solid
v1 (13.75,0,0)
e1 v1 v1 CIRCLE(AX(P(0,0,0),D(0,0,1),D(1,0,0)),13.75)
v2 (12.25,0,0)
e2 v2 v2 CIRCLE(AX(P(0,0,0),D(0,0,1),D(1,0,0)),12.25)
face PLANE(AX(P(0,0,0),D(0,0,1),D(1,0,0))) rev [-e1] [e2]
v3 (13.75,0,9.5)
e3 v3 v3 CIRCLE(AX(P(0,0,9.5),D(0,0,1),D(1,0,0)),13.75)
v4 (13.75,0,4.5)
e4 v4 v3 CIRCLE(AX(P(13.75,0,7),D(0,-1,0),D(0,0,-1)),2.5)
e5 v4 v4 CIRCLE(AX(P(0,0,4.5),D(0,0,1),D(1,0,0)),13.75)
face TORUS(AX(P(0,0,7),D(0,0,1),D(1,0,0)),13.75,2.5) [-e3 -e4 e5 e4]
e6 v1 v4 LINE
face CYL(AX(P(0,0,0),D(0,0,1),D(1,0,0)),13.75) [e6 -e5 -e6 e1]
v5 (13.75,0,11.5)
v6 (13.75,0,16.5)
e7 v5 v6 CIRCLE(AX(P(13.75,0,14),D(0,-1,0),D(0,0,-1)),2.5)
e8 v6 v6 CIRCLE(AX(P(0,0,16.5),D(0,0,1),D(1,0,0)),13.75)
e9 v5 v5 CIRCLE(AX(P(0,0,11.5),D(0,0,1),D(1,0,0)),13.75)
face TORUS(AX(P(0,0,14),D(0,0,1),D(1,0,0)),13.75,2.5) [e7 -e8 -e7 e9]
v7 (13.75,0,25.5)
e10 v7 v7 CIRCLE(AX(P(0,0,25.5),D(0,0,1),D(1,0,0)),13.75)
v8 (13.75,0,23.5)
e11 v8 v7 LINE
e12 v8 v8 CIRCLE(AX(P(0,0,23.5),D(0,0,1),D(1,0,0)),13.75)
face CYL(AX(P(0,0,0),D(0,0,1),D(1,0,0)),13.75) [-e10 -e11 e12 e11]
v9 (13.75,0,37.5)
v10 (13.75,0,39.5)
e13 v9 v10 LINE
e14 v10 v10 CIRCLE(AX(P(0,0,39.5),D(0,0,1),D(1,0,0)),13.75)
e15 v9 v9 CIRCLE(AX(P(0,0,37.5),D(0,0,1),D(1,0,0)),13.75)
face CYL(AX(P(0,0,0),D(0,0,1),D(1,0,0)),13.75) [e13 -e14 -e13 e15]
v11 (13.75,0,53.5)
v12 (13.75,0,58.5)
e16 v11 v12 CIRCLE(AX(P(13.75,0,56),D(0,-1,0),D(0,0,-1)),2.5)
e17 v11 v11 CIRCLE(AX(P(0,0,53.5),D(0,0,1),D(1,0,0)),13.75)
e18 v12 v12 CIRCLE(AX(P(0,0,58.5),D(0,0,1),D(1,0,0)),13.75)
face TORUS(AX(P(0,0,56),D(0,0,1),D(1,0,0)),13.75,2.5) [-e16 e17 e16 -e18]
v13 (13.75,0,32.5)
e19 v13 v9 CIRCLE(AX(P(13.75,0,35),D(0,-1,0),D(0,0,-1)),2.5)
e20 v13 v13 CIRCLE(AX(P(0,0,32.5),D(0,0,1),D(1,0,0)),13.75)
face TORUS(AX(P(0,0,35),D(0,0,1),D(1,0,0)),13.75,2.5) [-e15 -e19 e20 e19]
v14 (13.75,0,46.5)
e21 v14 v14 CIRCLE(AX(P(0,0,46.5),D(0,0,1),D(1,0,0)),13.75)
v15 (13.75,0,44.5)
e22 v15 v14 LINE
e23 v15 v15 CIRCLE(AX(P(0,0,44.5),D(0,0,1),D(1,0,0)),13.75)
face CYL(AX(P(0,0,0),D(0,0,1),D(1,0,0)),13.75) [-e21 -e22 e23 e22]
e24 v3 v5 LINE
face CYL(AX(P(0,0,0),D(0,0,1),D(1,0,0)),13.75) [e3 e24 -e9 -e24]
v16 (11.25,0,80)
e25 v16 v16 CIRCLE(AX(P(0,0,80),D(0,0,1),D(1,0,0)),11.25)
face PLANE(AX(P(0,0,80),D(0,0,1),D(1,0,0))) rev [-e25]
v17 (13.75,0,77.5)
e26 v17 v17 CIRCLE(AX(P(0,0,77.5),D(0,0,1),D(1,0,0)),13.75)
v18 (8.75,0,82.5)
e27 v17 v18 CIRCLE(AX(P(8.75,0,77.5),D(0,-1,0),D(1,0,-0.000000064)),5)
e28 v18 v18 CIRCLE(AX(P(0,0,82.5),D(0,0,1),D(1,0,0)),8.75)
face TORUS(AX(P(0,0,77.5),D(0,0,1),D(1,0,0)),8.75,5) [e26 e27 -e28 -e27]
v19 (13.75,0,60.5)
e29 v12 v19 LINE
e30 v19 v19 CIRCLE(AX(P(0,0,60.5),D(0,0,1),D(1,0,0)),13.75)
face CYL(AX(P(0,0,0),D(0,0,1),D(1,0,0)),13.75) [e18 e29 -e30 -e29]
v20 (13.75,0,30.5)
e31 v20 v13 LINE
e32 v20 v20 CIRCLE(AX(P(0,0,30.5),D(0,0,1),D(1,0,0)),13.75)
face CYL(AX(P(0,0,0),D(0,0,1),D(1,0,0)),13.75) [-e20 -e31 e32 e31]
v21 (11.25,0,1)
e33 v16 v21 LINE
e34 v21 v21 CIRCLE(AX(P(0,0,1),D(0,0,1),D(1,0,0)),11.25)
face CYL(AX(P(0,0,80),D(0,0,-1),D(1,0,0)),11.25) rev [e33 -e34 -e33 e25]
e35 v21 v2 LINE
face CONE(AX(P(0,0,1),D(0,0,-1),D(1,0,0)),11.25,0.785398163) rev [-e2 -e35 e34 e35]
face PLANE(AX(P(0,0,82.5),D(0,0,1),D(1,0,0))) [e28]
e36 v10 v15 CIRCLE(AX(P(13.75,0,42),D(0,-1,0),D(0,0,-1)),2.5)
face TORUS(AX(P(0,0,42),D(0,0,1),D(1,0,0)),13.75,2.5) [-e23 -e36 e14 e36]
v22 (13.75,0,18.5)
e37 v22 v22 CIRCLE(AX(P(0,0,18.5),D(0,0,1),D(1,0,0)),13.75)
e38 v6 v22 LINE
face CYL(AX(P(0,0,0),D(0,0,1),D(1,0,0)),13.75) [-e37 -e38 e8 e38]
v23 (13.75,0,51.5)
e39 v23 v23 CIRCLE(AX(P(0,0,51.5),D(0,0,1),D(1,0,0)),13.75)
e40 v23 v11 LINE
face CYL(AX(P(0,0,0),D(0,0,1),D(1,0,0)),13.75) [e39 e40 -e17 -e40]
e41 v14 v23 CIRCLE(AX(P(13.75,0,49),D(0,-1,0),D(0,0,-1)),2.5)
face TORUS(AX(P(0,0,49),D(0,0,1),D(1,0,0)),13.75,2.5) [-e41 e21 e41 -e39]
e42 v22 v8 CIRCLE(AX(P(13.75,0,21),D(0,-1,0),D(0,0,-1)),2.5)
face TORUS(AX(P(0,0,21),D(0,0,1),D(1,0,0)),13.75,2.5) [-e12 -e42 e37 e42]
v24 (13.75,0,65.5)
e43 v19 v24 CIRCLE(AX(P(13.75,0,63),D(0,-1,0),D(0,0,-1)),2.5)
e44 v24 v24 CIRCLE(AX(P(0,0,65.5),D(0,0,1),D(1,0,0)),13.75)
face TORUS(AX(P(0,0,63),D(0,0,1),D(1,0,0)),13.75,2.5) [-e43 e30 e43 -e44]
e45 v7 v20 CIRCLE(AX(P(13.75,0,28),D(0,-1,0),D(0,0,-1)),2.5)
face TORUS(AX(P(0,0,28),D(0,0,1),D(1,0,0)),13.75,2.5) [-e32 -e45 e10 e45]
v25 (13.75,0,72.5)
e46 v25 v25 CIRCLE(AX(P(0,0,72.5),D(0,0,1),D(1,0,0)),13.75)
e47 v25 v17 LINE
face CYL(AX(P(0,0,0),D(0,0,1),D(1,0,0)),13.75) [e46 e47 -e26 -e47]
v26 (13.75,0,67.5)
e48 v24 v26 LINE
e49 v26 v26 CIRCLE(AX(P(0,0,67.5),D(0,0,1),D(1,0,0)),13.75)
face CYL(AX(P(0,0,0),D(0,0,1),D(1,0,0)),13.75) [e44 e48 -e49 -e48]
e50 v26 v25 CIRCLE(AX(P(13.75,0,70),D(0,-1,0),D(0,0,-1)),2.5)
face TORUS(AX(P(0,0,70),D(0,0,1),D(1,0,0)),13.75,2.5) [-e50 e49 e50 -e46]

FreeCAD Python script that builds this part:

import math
import FreeCAD as App
import Part
import Sketcher

V = App.Vector


def edges_at(feature, points):
    """Names of the edges that pass closest to the given points."""
    edges = feature.Shape.Edges
    near = lambda p: min(range(len(edges)), key=lambda i: edges[i].distToShape(Part.Vertex(*p))[0])
    return sorted({f"Edge{near(p) + 1}" for p in points})

doc = App.newDocument("Part")
body = doc.addObject("PartDesign::Body", "Body")

# Sketch on XZ plane
sketch1 = body.newObject("Sketcher::SketchObject", "Sketch")
sketch1.AttachmentSupport = (doc.getObject("XZ_Plane"), [""])
sketch1.MapMode = "FlatFace"
sketch1.addGeometry([
    Part.LineSegment(V(0, 82.5, 0), V(0, 80, 0)),  # 0
    Part.LineSegment(V(0, 80, 0), V(11.2, 80, 0)),  # 1
    Part.LineSegment(V(11.2, 80, 0), V(11.2, 0, 0)),  # 2
    Part.LineSegment(V(11.2, 0, 0), V(13.8, 0, 0)),  # 3
    Part.LineSegment(V(13.8, 0, 0), V(13.8, 4.5, 0)),  # 4
    Part.ArcOfCircle(Part.Circle(V(13.8, 7, 0), V(0, 0, 1), 2.5), math.radians(-90), math.radians(90)),  # 5
    Part.LineSegment(V(13.8, 9.5, 0), V(13.8, 11.5, 0)),  # 6
    Part.ArcOfCircle(Part.Circle(V(13.8, 14, 0), V(0, 0, 1), 2.5), math.radians(-90), math.radians(90)),  # 7
    Part.LineSegment(V(13.8, 16.5, 0), V(13.8, 18.5, 0)),  # 8
    Part.ArcOfCircle(Part.Circle(V(13.8, 21, 0), V(0, 0, 1), 2.5), math.radians(-90), math.radians(90)),  # 9
    Part.LineSegment(V(13.8, 23.5, 0), V(13.8, 25.5, 0)),  # 10
    Part.ArcOfCircle(Part.Circle(V(13.8, 28, 0), V(0, 0, 1), 2.5), math.radians(-90), math.radians(90)),  # 11
    Part.LineSegment(V(13.8, 30.5, 0), V(13.8, 32.5, 0)),  # 12
    Part.ArcOfCircle(Part.Circle(V(13.8, 35, 0), V(0, 0, 1), 2.5), math.radians(-90), math.radians(90)),  # 13
    Part.LineSegment(V(13.8, 37.5, 0), V(13.8, 39.5, 0)),  # 14
    Part.ArcOfCircle(Part.Circle(V(13.8, 42, 0), V(0, 0, 1), 2.5), math.radians(-90), math.radians(90)),  # 15
    Part.LineSegment(V(13.8, 44.5, 0), V(13.8, 46.5, 0)),  # 16
    Part.ArcOfCircle(Part.Circle(V(13.8, 49, 0), V(0, 0, 1), 2.5), math.radians(-90), math.radians(90)),  # 17
    Part.LineSegment(V(13.8, 51.5, 0), V(13.8, 53.5, 0)),  # 18
    Part.ArcOfCircle(Part.Circle(V(13.8, 56, 0), V(0, 0, 1), 2.5), math.radians(-90), math.radians(90)),  # 19
    Part.LineSegment(V(13.8, 58.5, 0), V(13.8, 60.5, 0)),  # 20
    Part.ArcOfCircle(Part.Circle(V(13.8, 63, 0), V(0, 0, 1), 2.5), math.radians(-90), math.radians(90)),  # 21
    Part.LineSegment(V(13.8, 65.5, 0), V(13.8, 67.5, 0)),  # 22
    Part.ArcOfCircle(Part.Circle(V(13.8, 70, 0), V(0, 0, 1), 2.5), math.radians(-90), math.radians(90)),  # 23
    Part.LineSegment(V(13.8, 72.5, 0), V(13.8, 77.5, 0)),  # 24
    Part.ArcOfCircle(Part.Circle(V(8.8, 77.5, 0), V(0, 0, 1), 5), math.radians(0), math.radians(90)),  # 25
    Part.LineSegment(V(8.8, 82.5, 0), V(0, 82.5, 0)),  # 26
], False)
sketch1.addConstraint([
    Sketcher.Constraint("Coincident", 0, 2, 1, 1),
    Sketcher.Constraint("Coincident", 1, 2, 2, 1),
    Sketcher.Constraint("Coincident", 2, 2, 3, 1),
    Sketcher.Constraint("Coincident", 3, 2, 4, 1),
    Sketcher.Constraint("Coincident", 4, 2, 5, 1),
    Sketcher.Constraint("Coincident", 5, 2, 6, 1),
    Sketcher.Constraint("Coincident", 6, 2, 7, 1),
    Sketcher.Constraint("Coincident", 7, 2, 8, 1),
    Sketcher.Constraint("Coincident", 8, 2, 9, 1),
    Sketcher.Constraint("Coincident", 9, 2, 10, 1),
    Sketcher.Constraint("Coincident", 10, 2, 11, 1),
    Sketcher.Constraint("Coincident", 11, 2, 12, 1),
    Sketcher.Constraint("Coincident", 12, 2, 13, 1),
    Sketcher.Constraint("Coincident", 13, 2, 14, 1),
    Sketcher.Constraint("Coincident", 14, 2, 15, 1),
    Sketcher.Constraint("Coincident", 15, 2, 16, 1),
    Sketcher.Constraint("Coincident", 16, 2, 17, 1),
    Sketcher.Constraint("Coincident", 17, 2, 18, 1),
    Sketcher.Constraint("Coincident", 18, 2, 19, 1),
    Sketcher.Constraint("Coincident", 19, 2, 20, 1),
    Sketcher.Constraint("Coincident", 20, 2, 21, 1),
    Sketcher.Constraint("Coincident", 21, 2, 22, 1),
    Sketcher.Constraint("Coincident", 22, 2, 23, 1),
    Sketcher.Constraint("Coincident", 23, 2, 24, 1),
    Sketcher.Constraint("Tangent", 24, 2, 25, 1),
    Sketcher.Constraint("Tangent", 25, 2, 26, 1),
    Sketcher.Constraint("Coincident", 26, 2, 0, 1),
    Sketcher.Constraint("Vertical", 0),
    Sketcher.Constraint("Horizontal", 1),
    Sketcher.Constraint("Vertical", 2),
    Sketcher.Constraint("Horizontal", 3),
    Sketcher.Constraint("Vertical", 4),
    Sketcher.Constraint("Vertical", 6),
    Sketcher.Constraint("Vertical", 8),
    Sketcher.Constraint("Vertical", 10),
    Sketcher.Constraint("Vertical", 12),
    Sketcher.Constraint("Vertical", 14),
    Sketcher.Constraint("Vertical", 16),
    Sketcher.Constraint("Vertical", 18),
    Sketcher.Constraint("Vertical", 20),
    Sketcher.Constraint("Vertical", 22),
    Sketcher.Constraint("Vertical", 24),
    Sketcher.Constraint("Horizontal", 26),
    Sketcher.Constraint("Equal", 5, 7),
    Sketcher.Constraint("Equal", 7, 9),
    Sketcher.Constraint("Equal", 9, 11),
    Sketcher.Constraint("Equal", 11, 13),
    Sketcher.Constraint("Equal", 13, 15),
    Sketcher.Constraint("Equal", 15, 17),
    Sketcher.Constraint("Equal", 17, 19),
    Sketcher.Constraint("Equal", 19, 21),
    Sketcher.Constraint("Equal", 21, 23),
    Sketcher.Constraint("PointOnObject", 0, 2, -2),
    Sketcher.Constraint("PointOnObject", 2, 2, -1),
    Sketcher.Constraint("Vertical", 5, 3, 7, 3),
    Sketcher.Constraint("Vertical", 7, 3, 9, 3),
    Sketcher.Constraint("Vertical", 9, 3, 11, 3),
    Sketcher.Constraint("Vertical", 11, 3, 13, 3),
    Sketcher.Constraint("Vertical", 13, 3, 15, 3),
    Sketcher.Constraint("Vertical", 15, 3, 17, 3),
    Sketcher.Constraint("Vertical", 17, 3, 19, 3),
    Sketcher.Constraint("Vertical", 19, 3, 21, 3),
    Sketcher.Constraint("Vertical", 21, 3, 23, 3),
    Sketcher.Constraint("Vertical", 23, 3, 3, 2),
    Sketcher.Constraint("Vertical", 4, 2, 5, 2),
    Sketcher.Constraint("Vertical", 6, 2, 7, 2),
    Sketcher.Constraint("Vertical", 8, 2, 9, 2),
    Sketcher.Constraint("Vertical", 10, 2, 11, 2),
    Sketcher.Constraint("Vertical", 12, 2, 13, 2),
    Sketcher.Constraint("Vertical", 14, 2, 15, 2),
    Sketcher.Constraint("Vertical", 16, 2, 17, 2),
    Sketcher.Constraint("Vertical", 18, 2, 19, 2),
    Sketcher.Constraint("Vertical", 20, 2, 21, 2),
    Sketcher.Constraint("Vertical", 22, 2, 23, 2),
    Sketcher.Constraint("Equal", 3, 0),
    Sketcher.Constraint("Equal", 6, 8),
    Sketcher.Constraint("Equal", 8, 10),
    Sketcher.Constraint("Equal", 10, 12),
    Sketcher.Constraint("Equal", 12, 14),
    Sketcher.Constraint("Equal", 14, 16),
    Sketcher.Constraint("Equal", 16, 18),
    Sketcher.Constraint("Equal", 18, 20),
    Sketcher.Constraint("Equal", 20, 22),
    Sketcher.Constraint("Radius", 25, 5.0),
    Sketcher.Constraint("Radius", 5, 2.5),
    Sketcher.Constraint("DistanceY", 2, 2, 2, 1, 80.0),
    Sketcher.Constraint("DistanceY", 6, 1, 6, 2, 2.0),
    Sketcher.Constraint("DistanceY", 24, 1, 24, 2, 5.0),
    Sketcher.Constraint("DistanceX", 3, 1, 3, 2, 2.5),
    Sketcher.Constraint("DistanceX", 1, 1, 1, 2, 11.25),
])
revolution = body.newObject("PartDesign::Revolution", "Revolution")
revolution.Profile = sketch1
revolution.ReferenceAxis = (sketch1, ["V_Axis"])
revolution.Angle = 360
doc.recompute()

chamfer = body.newObject("PartDesign::Chamfer", "Chamfer")
chamfer.Base = (revolution, edges_at(revolution, [(-11.25, 0, 0)]))
chamfer.Size = 1

doc.recompute()
